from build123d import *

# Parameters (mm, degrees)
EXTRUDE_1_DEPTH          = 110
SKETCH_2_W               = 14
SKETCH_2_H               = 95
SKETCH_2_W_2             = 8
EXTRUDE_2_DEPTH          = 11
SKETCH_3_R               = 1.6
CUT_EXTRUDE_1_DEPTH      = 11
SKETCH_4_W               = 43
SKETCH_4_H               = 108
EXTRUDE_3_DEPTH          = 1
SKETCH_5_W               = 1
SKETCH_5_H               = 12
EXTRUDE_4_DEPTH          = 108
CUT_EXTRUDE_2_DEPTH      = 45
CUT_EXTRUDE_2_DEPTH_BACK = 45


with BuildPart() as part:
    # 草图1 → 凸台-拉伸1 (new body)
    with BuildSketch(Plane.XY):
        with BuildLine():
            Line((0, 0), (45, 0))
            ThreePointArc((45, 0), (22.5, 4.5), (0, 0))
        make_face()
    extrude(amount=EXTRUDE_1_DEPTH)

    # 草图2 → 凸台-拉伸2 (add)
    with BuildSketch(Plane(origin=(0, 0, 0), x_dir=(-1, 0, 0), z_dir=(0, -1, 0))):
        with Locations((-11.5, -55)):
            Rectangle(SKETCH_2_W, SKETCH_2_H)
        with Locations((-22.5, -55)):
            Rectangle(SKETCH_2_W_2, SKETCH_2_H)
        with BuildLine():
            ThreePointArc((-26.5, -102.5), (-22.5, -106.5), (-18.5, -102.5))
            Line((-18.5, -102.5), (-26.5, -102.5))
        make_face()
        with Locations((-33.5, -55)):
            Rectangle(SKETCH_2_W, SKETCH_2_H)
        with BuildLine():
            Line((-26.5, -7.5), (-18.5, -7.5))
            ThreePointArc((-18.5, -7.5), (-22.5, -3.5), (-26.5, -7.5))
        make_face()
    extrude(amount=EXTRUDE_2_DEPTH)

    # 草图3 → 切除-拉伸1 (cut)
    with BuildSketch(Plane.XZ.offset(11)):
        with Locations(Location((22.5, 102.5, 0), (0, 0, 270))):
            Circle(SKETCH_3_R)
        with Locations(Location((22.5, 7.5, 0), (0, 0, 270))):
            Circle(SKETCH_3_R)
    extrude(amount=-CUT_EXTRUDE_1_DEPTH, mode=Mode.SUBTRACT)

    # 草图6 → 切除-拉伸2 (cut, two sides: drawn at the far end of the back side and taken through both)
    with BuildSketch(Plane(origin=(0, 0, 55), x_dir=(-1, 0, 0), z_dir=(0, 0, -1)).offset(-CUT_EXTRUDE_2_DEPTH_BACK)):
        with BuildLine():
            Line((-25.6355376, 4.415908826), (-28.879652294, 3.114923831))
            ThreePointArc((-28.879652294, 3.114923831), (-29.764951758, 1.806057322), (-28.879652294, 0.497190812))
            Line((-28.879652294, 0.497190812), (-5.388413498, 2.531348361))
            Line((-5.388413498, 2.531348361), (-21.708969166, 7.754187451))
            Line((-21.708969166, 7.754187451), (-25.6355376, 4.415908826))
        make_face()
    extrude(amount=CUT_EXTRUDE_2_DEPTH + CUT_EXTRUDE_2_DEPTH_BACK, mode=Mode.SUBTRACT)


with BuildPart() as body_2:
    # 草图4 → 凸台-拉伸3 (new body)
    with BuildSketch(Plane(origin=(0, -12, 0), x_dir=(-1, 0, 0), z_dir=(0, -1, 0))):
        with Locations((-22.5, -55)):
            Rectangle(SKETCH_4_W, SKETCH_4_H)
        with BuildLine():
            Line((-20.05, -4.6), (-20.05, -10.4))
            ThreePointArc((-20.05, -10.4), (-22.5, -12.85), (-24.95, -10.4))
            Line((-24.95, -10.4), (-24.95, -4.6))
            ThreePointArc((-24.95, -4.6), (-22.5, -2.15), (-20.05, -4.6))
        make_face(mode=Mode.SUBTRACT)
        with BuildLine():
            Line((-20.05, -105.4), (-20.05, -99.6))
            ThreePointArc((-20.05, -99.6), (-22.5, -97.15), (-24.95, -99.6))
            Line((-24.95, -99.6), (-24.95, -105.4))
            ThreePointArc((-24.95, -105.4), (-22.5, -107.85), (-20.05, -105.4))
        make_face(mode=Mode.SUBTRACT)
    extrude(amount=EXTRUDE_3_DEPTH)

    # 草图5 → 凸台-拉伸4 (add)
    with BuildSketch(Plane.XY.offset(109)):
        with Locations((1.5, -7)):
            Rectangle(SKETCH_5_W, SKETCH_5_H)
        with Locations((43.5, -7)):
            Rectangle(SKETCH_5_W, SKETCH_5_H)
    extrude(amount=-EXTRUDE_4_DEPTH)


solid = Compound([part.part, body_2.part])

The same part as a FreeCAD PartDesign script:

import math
import FreeCAD as App
import Part
import Sketcher
from FreeCAD import Vector
Q = App.Units.Quantity


def add_polygon(sketch, points):
    """Adds a closed chain of lines whose ends are joined by coincident constraints."""
    first, n = sketch.GeometryCount, len(points)
    for a, b in zip(points, points[1:] + points[:1]):
        sketch.addGeometry(Part.LineSegment(App.Vector(*a, 0), App.Vector(*b, 0)), False)
    for i in range(n):
        sketch.addConstraint(Sketcher.Constraint("Coincident", first + i, 2, first + (i + 1) % n, 1))

doc = App.newDocument("Part")
params = doc.addObject("Spreadsheet::Sheet", "Params")
for row, (alias, value) in enumerate([
    ("sketch1_radius", "58.5 mm"),
    ("sketch1_width", "45 mm"),
    ("pad1_length", "110 mm"),
    ("sketch2_radius", "4 mm"),
    ("sketch2_width", "14 mm"),
    ("sketch2_height", "95 mm"),
    ("pad2_length", "11 mm"),
    ("sketch3_diameter", "3.2 mm"),
    ("pocket1_length", "11 mm"),
    ("pocket2_length", "45 mm"),
    ("pocket2_length2", "45 mm"),
    ("sketch5_width", "43 mm"),
    ("sketch5_height", "108 mm"),
    ("sketch5_radius", "2.45 mm"),
    ("sketch5_height2", "5.8 mm"),
    ("pad3_length", "1 mm"),
    ("sketch6_width", "1 mm"),
    ("sketch6_height", "12 mm"),
    ("pad4_length", "108 mm"),
], start=1):
    params.set(f"A{row}", alias)
    params.set(f"B{row}", "=" + value)
    params.setAlias(f"B{row}", alias)

body = doc.addObject("PartDesign::Body", "Body")

sketch1 = doc.addObject("Sketcher::SketchObject", "Sketch")
body.addObject(sketch1)
sketch1.AttachmentSupport = (doc.XY_Plane, [""])
sketch1.MapMode = "FlatFace"
sketch1.addGeometry([
    Part.LineSegment(Vector(0, 0, 0), Vector(45, 0, 0)),
    Part.ArcOfCircle(Part.Circle(Vector(22, -54, 0), Vector(0, 0, 1), 58), math.radians(67), math.radians(113)),
], False)
sketch1.addConstraint([
    Sketcher.Constraint("Coincident", 0, 1, 1, 2),
    Sketcher.Constraint("Coincident", 1, 1, 0, 2),
    Sketcher.Constraint("Horizontal", 0),
    Sketcher.Constraint("Coincident", 0, 1, -1, 1),
    Sketcher.Constraint("Radius", 1, Q("58.5 mm")),
    Sketcher.Constraint("DistanceX", 0, 1, 0, 2, Q("45 mm")),
])
sketch1.setExpression("Constraints[4]", "Params.sketch1_radius")
sketch1.setExpression("Constraints[5]", "Params.sketch1_width")
pad1 = doc.addObject("PartDesign::Pad", "Pad")
body.addObject(pad1)
pad1.Profile = sketch1
pad1.setExpression("Length", "Params.pad1_length")

sketch2 = doc.addObject("Sketcher::SketchObject", "Sketch001")
body.addObject(sketch2)
sketch2.AttachmentSupport = (doc.XZ_Plane, [""])
sketch2.MapMode = "FlatFace"
sketch2.addGeometry([
    Part.LineSegment(Vector(4.5, 102.5, 0), Vector(4.5, 7.5, 0)),
    Part.LineSegment(Vector(4.5, 7.5, 0), Vector(18.5, 7.5, 0)),
    Part.ArcOfCircle(Part.Circle(Vector(22.5, 7.5, 0), Vector(0, 0, 1), 4), math.radians(180), math.radians(360)),
    Part.LineSegment(Vector(26.5, 7.5, 0), Vector(40.5, 7.5, 0)),
    Part.LineSegment(Vector(40.5, 7.5, 0), Vector(40.5, 102.5, 0)),
    Part.LineSegment(Vector(40.5, 102.5, 0), Vector(26.5, 102.5, 0)),
    Part.ArcOfCircle(Part.Circle(Vector(22.5, 102.5, 0), Vector(0, 0, 1), 4), math.radians(0), math.radians(180)),
    Part.LineSegment(Vector(18.5, 102.5, 0), Vector(4.5, 102.5, 0)),
], False)
sketch2.addConstraint([
    Sketcher.Constraint("Coincident", 0, 2, 1, 1),
    Sketcher.Constraint("Coincident", 1, 2, 2, 1),
    Sketcher.Constraint("Coincident", 2, 2, 3, 1),
    Sketcher.Constraint("Coincident", 3, 2, 4, 1),
    Sketcher.Constraint("Coincident", 4, 2, 5, 1),
    Sketcher.Constraint("Coincident", 5, 2, 6, 1),
    Sketcher.Constraint("Coincident", 6, 2, 7, 1),
    Sketcher.Constraint("Coincident", 7, 2, 0, 1),
    Sketcher.Constraint("Vertical", 0),
    Sketcher.Constraint("Horizontal", 1),
    Sketcher.Constraint("Horizontal", 3),
    Sketcher.Constraint("Vertical", 4),
    Sketcher.Constraint("Horizontal", 5),
    Sketcher.Constraint("Horizontal", 7),
    Sketcher.Constraint("Equal", 2, 6),
    Sketcher.Constraint("Horizontal", 2, 3, 0, 2),
    Sketcher.Constraint("Horizontal", 1, 2, 2, 2),
    Sketcher.Constraint("Horizontal", 6, 3, 4, 2),
    Sketcher.Constraint("Horizontal", 5, 2, 6, 2),
    Sketcher.Constraint("Vertical", 2, 3, 6, 3),
    Sketcher.Constraint("Equal", 1, 3),
    Sketcher.Constraint("Radius", 2, Q("4 mm")),
    Sketcher.Constraint("DistanceX", 1, 1, 1, 2, Q("14 mm")),
    Sketcher.Constraint("DistanceY", 0, 2, 0, 1, Q("95 mm")),
    Sketcher.Constraint("DistanceX", -1, 1, 2, 3, Q("22.5 mm")),
    Sketcher.Constraint("DistanceY", -1, 1, 2, 3, Q("7.5 mm")),
])
sketch2.setExpression("Constraints[21]", "Params.sketch2_radius")
sketch2.setExpression("Constraints[22]", "Params.sketch2_width")
sketch2.setExpression("Constraints[23]", "Params.sketch2_height")
pad2 = doc.addObject("PartDesign::Pad", "Pad001")
body.addObject(pad2)
pad2.Profile = sketch2
pad2.setExpression("Length", "Params.pad2_length")

sketch3 = doc.addObject("Sketcher::SketchObject", "Sketch002")
body.addObject(sketch3)
sketch3.AttachmentSupport = (doc.XZ_Plane, [""])
sketch3.MapMode = "FlatFace"
sketch3.AttachmentOffset = App.Placement(Vector(0, 0, 11), App.Rotation())
sketch3.addGeometry([
    Part.Circle(Vector(22.5, 102.5, 0), Vector(0, 0, 1), 1.6),
    Part.Circle(Vector(22.5, 7.5, 0), Vector(0, 0, 1), 1.6),
], False)
sketch3.addConstraint([
    Sketcher.Constraint("Equal", 0, 1),
    Sketcher.Constraint("Vertical", 0, 3, 1, 3),
    Sketcher.Constraint("Diameter", 0, Q("3.2 mm")),
    Sketcher.Constraint("DistanceY", 1, 3, 0, 3, Q("95 mm")),
    Sketcher.Constraint("DistanceX", -1, 1, 0, 3, Q("22.5 mm")),
    Sketcher.Constraint("DistanceY", -1, 1, 0, 3, Q("102.5 mm")),
])
sketch3.setExpression("Constraints[2]", "Params.sketch3_diameter")
pocket1 = doc.addObject("PartDesign::Pocket", "Pocket")
body.addObject(pocket1)
pocket1.Profile = sketch3
pocket1.setExpression("Length", "Params.pocket1_length")

sketch4 = doc.addObject("Sketcher::SketchObject", "Sketch003")
body.addObject(sketch4)
sketch4.AttachmentSupport = (doc.XY_Plane, [""])
sketch4.MapMode = "FlatFace"
sketch4.AttachmentOffset = App.Placement(Vector(0, 0, 55), App.Rotation())
sketch4.addGeometry([
    Part.LineSegment(Vector(25.6, 4.4, 0), Vector(28.9, 3.1, 0)),
    Part.ArcOfCircle(Part.Circle(Vector(28.4, 1.8, 0), Vector(0, 0, 1), 1.4), math.radians(-68), math.radians(68)),
    Part.LineSegment(Vector(28.9, 0.5, 0), Vector(5.4, 2.5, 0)),
    Part.LineSegment(Vector(5.4, 2.5, 0), Vector(21.7, 7.8, 0)),
    Part.LineSegment(Vector(21.7, 7.8, 0), Vector(25.6, 4.4, 0)),
], False)
sketch4.addConstraint([
    Sketcher.Constraint("Tangent", 0, 2, 1, 2),
    Sketcher.Constraint("Coincident", 1, 1, 2, 1),
    Sketcher.Constraint("Coincident", 2, 2, 3, 1),
    Sketcher.Constraint("Coincident", 3, 2, 4, 1),
    Sketcher.Constraint("Coincident", 4, 2, 0, 1),
    Sketcher.Constraint("Vertical", 0, 2, 1, 1),
    Sketcher.Constraint("Radius", 1, Q("1.410193 mm")),
    Sketcher.Constraint("Distance", 0, Q("3.49526 mm")),
    Sketcher.Constraint("DistanceX", -1, 1, 1, 3, Q("28.354758 mm")),
    Sketcher.Constraint("DistanceY", -1, 1, 1, 1, Q("0.497191 mm")),
    Sketcher.Constraint("DistanceY", -1, 1, 2, 2, Q("2.531348 mm")),
    Sketcher.Constraint("DistanceX", -1, 1, 3, 2, Q("21.708969 mm")),
    Sketcher.Constraint("DistanceY", -1, 1, 4, 2, Q("4.415909 mm")),
    Sketcher.Constraint("DistanceX", 2, 2, 0, 2, Q("23.491239 mm")),
    Sketcher.Constraint("DistanceY", 1, 3, 3, 2, Q("5.94813 mm")),
])
pocket2 = doc.addObject("PartDesign::Pocket", "Pocket001")
body.addObject(pocket2)
pocket2.Profile = sketch4
pocket2.Type = "TwoLengths"
pocket2.setExpression("Length", "Params.pocket2_length")
pocket2.setExpression("Length2", "Params.pocket2_length2")
body2 = doc.addObject("PartDesign::Body", "Body001")

sketch5 = doc.addObject("Sketcher::SketchObject", "Sketch004")
body2.addObject(sketch5)
sketch5.AttachmentSupport = (doc.getObject("XZ_Plane001"), [""])
sketch5.MapMode = "FlatFace"
sketch5.AttachmentOffset = App.Placement(Vector(0, 0, 12), App.Rotation())
add_polygon(sketch5, [(44, 1), (44, 109), (1, 109), (1, 1)])
sketch5.addGeometry(Part.LineSegment(Vector(20.1, 99.6, 0), Vector(20.1, 105.4, 0)), False)
sketch5.addGeometry(Part.ArcOfCircle(Part.Circle(Vector(22.5, 105.4, 0), Vector(0, 0, 1), 2.5), math.radians(0), math.radians(180)), False)
sketch5.addGeometry(Part.LineSegment(Vector(24.9, 105.4, 0), Vector(24.9, 99.6, 0)), False)
sketch5.addGeometry(Part.ArcOfCircle(Part.Circle(Vector(22.5, 99.6, 0), Vector(0, 0, 1), 2.5), math.radians(180), math.radians(360)), False)
sketch5.addGeometry(Part.ArcOfCircle(Part.Circle(Vector(22.5, 4.6, 0), Vector(0, 0, 1), 2.5), math.radians(180), math.radians(360)), False)
sketch5.addGeometry(Part.LineSegment(Vector(20.1, 4.6, 0), Vector(20.1, 10.4, 0)), False)
sketch5.addGeometry(Part.ArcOfCircle(Part.Circle(Vector(22.5, 10.4, 0), Vector(0, 0, 1), 2.5), math.radians(0), math.radians(180)), False)
sketch5.addGeometry(Part.LineSegment(Vector(24.9, 10.4, 0), Vector(24.9, 4.6, 0)), False)
sketch5.addConstraint([
    Sketcher.Constraint("Tangent", 4, 2, 5, 2),
    Sketcher.Constraint("Tangent", 5, 1, 6, 1),
    Sketcher.Constraint("Tangent", 6, 2, 7, 2),
    Sketcher.Constraint("Tangent", 7, 1, 4, 1),
    Sketcher.Constraint("Tangent", 8, 1, 9, 1),
    Sketcher.Constraint("Tangent", 9, 2, 10, 2),
    Sketcher.Constraint("Tangent", 10, 1, 11, 1),
    Sketcher.Constraint("Tangent", 11, 2, 8, 2),
    Sketcher.Constraint("Vertical", 0),
    Sketcher.Constraint("Horizontal", 1),
    Sketcher.Constraint("Vertical", 2),
    Sketcher.Constraint("Horizontal", 3),
    Sketcher.Constraint("Vertical", 4),
    Sketcher.Constraint("Vertical", 6),
    Sketcher.Constraint("Vertical", 9),
    Sketcher.Constraint("Vertical", 11),
    Sketcher.Constraint("Equal", 7, 8),
    Sketcher.Constraint("Vertical", 7, 3, 8, 3),
    Sketcher.Constraint("Equal", 6, 9),
    Sketcher.Constraint("DistanceX", 1, 2, 1, 1, Q("43 mm")),
    Sketcher.Constraint("DistanceY", 0, 1, 0, 2, Q("108 mm")),
    Sketcher.Constraint("Radius", 5, Q("2.45 mm")),
    Sketcher.Constraint("DistanceY", 4, 1, 4, 2, Q("5.8 mm")),
    Sketcher.Constraint("DistanceX", -1, 1, 0, 2, Q("44 mm")),
    Sketcher.Constraint("DistanceY", -1, 1, 0, 2, Q("109 mm")),
    Sketcher.Constraint("DistanceY", 8, 3, 7, 3, Q("95 mm")),
    Sketcher.Constraint("DistanceX", -1, 1, 5, 3, Q("22.5 mm")),
    Sketcher.Constraint("DistanceY", -1, 1, 5, 3, Q("105.4 mm")),
])
sketch5.setExpression("Constraints[23]", "Params.sketch5_width")
sketch5.setExpression("Constraints[24]", "Params.sketch5_height")
sketch5.setExpression("Constraints[25]", "Params.sketch5_radius")
sketch5.setExpression("Constraints[26]", "Params.sketch5_height2")
pad3 = doc.addObject("PartDesign::Pad", "Pad002")
body2.addObject(pad3)
pad3.Profile = sketch5
pad3.setExpression("Length", "Params.pad3_length")

sketch6 = doc.addObject("Sketcher::SketchObject", "Sketch005")
body2.addObject(sketch6)
sketch6.AttachmentSupport = (doc.getObject("XY_Plane001"), [""])
sketch6.MapMode = "FlatFace"
sketch6.AttachmentOffset = App.Placement(Vector(0, 0, 109), App.Rotation())
add_polygon(sketch6, [(1, -1), (1, -13), (2, -13), (2, -1)])
add_polygon(sketch6, [(43, -1), (43, -13), (44, -13), (44, -1)])
sketch6.addConstraint([
    Sketcher.Constraint("Vertical", 0),
    Sketcher.Constraint("Horizontal", 1),
    Sketcher.Constraint("Vertical", 2),
    Sketcher.Constraint("Horizontal", 3),
    Sketcher.Constraint("Vertical", 4),
    Sketcher.Constraint("Horizontal", 5),
    Sketcher.Constraint("Vertical", 6),
    Sketcher.Constraint("Horizontal", 7),
    Sketcher.Constraint("Horizontal", 1, 2, 4, 2),
    Sketcher.Constraint("Horizontal", 3, 2, 6, 2),
    Sketcher.Constraint("Equal", 3, 5),
    Sketcher.Constraint("DistanceX", 1, 1, 1, 2, Q("1 mm")),
    Sketcher.Constraint("DistanceY", 0, 2, 0, 1, Q("12 mm")),
    Sketcher.Constraint("DistanceX", -1, 1, 0, 2, Q("1 mm")),
    Sketcher.Constraint("DistanceY", 0, 2, -1, 1, Q("13 mm")),
    Sketcher.Constraint("DistanceX", -1, 1, 4, 2, Q("43 mm")),
])
sketch6.setExpression("Constraints[19]", "Params.sketch6_width")
sketch6.setExpression("Constraints[20]", "Params.sketch6_height")
pad4 = doc.addObject("PartDesign::Pad", "Pad003")
body2.addObject(pad4)
pad4.Profile = sketch6
pad4.setExpression("Length", "Params.pad4_length")
pad4.Reversed = True

doc.recompute()
